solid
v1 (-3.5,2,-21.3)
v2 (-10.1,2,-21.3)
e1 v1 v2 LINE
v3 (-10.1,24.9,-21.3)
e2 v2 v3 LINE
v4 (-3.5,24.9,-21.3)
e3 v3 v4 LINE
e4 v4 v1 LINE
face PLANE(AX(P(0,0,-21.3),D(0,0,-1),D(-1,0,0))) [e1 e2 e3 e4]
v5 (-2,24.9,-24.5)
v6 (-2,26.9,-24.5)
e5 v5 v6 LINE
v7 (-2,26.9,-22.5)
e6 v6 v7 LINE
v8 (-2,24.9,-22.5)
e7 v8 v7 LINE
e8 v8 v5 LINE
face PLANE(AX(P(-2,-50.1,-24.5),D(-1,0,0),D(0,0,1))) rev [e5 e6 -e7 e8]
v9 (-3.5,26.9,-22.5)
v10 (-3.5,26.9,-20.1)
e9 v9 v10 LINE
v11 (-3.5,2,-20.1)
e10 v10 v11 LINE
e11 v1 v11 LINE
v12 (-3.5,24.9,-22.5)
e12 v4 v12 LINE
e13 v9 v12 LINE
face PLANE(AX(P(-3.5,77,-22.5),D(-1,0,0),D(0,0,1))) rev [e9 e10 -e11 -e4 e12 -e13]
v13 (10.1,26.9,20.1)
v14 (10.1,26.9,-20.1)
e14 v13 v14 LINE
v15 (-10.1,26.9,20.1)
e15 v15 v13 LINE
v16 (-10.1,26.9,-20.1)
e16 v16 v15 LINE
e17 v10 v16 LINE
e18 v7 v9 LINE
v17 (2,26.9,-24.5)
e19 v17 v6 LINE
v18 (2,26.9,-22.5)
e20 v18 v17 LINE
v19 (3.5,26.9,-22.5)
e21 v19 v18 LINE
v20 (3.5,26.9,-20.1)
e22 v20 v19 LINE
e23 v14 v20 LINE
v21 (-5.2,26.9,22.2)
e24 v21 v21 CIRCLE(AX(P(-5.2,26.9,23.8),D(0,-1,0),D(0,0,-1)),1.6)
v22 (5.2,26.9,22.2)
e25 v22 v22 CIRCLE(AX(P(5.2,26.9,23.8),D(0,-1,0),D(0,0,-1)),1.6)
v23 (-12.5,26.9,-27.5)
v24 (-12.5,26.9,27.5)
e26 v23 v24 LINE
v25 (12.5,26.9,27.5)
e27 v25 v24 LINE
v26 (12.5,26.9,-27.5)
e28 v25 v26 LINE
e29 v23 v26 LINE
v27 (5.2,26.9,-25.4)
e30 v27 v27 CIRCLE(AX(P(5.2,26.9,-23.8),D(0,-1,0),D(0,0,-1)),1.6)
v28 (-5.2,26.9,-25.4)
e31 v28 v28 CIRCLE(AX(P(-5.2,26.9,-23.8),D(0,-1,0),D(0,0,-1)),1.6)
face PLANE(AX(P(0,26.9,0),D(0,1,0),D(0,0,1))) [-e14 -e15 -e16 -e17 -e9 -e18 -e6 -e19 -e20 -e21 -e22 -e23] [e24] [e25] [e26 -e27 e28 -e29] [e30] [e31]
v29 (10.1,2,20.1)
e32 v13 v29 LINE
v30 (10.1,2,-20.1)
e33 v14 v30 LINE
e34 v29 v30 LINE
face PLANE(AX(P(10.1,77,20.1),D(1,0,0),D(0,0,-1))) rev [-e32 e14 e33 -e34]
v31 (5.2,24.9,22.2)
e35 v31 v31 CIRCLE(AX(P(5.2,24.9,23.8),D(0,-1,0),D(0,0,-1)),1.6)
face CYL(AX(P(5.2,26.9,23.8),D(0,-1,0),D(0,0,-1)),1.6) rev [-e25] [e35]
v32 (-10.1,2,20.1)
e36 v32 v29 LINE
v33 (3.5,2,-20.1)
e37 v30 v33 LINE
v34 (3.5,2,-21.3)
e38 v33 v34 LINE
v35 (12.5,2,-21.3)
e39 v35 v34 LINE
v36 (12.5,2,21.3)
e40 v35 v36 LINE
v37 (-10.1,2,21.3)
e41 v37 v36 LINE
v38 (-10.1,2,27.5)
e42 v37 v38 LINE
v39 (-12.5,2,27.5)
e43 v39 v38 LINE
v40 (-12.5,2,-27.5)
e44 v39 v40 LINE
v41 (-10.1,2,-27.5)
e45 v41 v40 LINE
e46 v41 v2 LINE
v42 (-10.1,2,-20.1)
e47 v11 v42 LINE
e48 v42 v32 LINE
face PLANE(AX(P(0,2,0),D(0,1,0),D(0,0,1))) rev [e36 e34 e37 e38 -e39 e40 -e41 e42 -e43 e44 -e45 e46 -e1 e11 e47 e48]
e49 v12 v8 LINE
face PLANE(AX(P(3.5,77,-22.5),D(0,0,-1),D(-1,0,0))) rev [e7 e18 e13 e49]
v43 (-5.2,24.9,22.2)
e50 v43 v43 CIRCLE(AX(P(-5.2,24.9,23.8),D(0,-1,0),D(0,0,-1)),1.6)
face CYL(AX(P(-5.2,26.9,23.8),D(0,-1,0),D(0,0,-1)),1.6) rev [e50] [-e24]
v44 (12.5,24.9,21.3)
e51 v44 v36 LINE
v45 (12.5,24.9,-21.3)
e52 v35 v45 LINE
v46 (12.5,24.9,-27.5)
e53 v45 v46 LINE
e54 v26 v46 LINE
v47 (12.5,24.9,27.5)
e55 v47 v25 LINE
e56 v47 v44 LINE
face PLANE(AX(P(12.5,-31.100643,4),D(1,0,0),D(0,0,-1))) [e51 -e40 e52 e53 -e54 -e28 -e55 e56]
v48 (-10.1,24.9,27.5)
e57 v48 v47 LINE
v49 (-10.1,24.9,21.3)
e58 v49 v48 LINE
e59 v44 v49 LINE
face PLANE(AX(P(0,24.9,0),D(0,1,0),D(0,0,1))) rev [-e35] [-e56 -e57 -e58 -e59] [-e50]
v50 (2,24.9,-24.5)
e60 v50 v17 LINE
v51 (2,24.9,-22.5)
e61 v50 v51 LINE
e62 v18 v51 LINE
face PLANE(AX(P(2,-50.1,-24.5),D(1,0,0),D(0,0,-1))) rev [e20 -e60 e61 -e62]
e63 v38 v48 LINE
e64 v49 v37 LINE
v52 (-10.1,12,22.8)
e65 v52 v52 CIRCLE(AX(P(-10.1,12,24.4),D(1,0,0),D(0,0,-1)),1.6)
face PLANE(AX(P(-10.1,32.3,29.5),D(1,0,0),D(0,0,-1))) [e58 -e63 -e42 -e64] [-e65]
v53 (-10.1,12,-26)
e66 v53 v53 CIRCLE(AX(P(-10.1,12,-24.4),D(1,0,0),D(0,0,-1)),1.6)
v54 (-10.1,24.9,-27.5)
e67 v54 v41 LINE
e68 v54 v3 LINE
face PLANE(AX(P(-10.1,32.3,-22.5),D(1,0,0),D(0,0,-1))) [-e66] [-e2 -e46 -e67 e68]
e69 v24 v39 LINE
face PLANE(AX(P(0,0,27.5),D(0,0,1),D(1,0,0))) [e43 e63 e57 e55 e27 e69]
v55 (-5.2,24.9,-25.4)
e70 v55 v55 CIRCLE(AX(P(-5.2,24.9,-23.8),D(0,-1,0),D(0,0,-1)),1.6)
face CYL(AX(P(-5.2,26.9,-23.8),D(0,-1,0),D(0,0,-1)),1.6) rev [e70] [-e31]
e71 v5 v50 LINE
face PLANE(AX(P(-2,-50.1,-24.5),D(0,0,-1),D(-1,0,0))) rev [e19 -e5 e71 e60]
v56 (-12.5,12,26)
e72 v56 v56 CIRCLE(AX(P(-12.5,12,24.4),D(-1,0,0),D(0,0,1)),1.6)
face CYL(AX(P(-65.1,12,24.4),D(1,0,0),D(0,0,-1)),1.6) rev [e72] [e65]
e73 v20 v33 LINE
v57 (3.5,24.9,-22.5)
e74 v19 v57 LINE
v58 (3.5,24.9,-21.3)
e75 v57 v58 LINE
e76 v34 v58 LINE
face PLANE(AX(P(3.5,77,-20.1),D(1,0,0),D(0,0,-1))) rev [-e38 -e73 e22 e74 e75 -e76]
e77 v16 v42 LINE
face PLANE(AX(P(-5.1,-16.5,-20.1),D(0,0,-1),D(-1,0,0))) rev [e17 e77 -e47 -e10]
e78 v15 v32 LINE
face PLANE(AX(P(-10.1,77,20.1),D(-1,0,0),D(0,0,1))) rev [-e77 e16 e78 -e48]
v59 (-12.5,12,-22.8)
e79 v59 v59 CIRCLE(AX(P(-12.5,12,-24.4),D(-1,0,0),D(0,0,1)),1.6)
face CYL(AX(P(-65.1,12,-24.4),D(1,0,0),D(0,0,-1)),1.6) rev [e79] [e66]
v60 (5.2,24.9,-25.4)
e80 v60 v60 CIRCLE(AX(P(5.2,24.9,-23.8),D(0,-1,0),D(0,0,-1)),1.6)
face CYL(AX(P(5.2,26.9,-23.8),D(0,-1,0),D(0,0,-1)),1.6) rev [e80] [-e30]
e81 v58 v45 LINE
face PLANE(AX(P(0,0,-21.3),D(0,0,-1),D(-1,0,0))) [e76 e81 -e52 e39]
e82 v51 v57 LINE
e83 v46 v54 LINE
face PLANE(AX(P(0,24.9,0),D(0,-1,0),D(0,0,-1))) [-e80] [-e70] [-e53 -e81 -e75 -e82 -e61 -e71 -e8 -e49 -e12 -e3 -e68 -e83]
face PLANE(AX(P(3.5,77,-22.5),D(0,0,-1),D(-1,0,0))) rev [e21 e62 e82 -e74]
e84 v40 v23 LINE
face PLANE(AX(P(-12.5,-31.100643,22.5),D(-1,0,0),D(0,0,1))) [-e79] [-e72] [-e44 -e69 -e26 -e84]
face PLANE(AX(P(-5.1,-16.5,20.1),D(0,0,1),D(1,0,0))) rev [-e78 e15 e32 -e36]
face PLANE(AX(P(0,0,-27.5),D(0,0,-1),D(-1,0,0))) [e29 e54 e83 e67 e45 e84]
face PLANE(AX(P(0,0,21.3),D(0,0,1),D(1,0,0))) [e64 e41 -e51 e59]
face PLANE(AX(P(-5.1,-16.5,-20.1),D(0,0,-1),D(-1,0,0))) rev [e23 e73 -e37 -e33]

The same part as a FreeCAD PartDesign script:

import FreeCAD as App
import Part
import Sketcher
from FreeCAD import Vector


def edges_at(feature, points):
    """Names of the edges that pass closest to the given points."""
    edges = feature.Shape.Edges
    near = lambda p: min(range(len(edges)), key=lambda i: edges[i].distToShape(Part.Vertex(*p))[0])
    return sorted({f"Edge{near(p) + 1}" for p in points})

doc = App.newDocument("Part")
body = doc.addObject("PartDesign::Body", "Body")

# Sketch on XZ plane
sketch1 = body.newObject("Sketcher::SketchObject", "Sketch")
sketch1.AttachmentSupport = (doc.getObject("XZ_Plane"), [""])
sketch1.MapMode = "FlatFace"
sketch1.addGeometry([
    Part.LineSegment(Vector(-37.5, -4, 0), Vector(-37.5, 4, 0)),  # 0
    Part.LineSegment(Vector(-37.5, 4, 0), Vector(37.5, 4, 0)),  # 1
    Part.LineSegment(Vector(37.5, 4, 0), Vector(37.5, -4, 0)),  # 2
    Part.LineSegment(Vector(37.5, -4, 0), Vector(-37.5, -4, 0)),  # 3
    Part.Circle(Vector(-31.8, 0, 0), Vector(0, 0, 1), 1.6),  # 4
    Part.Circle(Vector(31.8, 0, 0), Vector(0, 0, 1), 1.6),  # 5
], False)
sketch1.addConstraint([
    Sketcher.Constraint("Coincident", 0, 2, 1, 1),
    Sketcher.Constraint("Coincident", 1, 2, 2, 1),
    Sketcher.Constraint("Coincident", 2, 2, 3, 1),
    Sketcher.Constraint("Coincident", 3, 2, 0, 1),
    Sketcher.Constraint("Vertical", 0),
    Sketcher.Constraint("Horizontal", 1),
    Sketcher.Constraint("Vertical", 2),
    Sketcher.Constraint("Horizontal", 3),
    Sketcher.Constraint("Equal", 4, 5),
    Sketcher.Constraint("Symmetric", 4, 3, 5, 3, -1, 1),
    Sketcher.Constraint("Symmetric", 0, 2, 2, 2, -1, 1),
    Sketcher.Constraint("PointOnObject", 4, 3, -1),
    Sketcher.Constraint("Diameter", 4, 3.2),
    Sketcher.Constraint("DistanceX", 1, 1, 1, 2, 75.0),
    Sketcher.Constraint("DistanceY", 0, 1, 0, 2, 8.0),
    Sketcher.Constraint("DistanceX", 4, 3, 5, 3, 63.5),
])
pad1 = body.newObject("PartDesign::Pad", "Pad")
pad1.Profile = sketch1
pad1.Length = 2
pad1.Reversed = True

# Sketch on XZ plane
sketch2 = body.newObject("Sketcher::SketchObject", "Sketch001")
sketch2.AttachmentSupport = (doc.getObject("XZ_Plane"), [""])
sketch2.MapMode = "FlatFace"
sketch2.AttachmentOffset = App.Placement(Vector(0, 0, -2), App.Rotation())
sketch2.addGeometry([
    Part.LineSegment(Vector(-12, 4, 0), Vector(-12, 22, 0)),
    Part.LineSegment(Vector(-12, 22, 0), Vector(12, 22, 0)),
    Part.LineSegment(Vector(12, 22, 0), Vector(12, 4, 0)),
    Part.LineSegment(Vector(12, 4, 0), Vector(-12, 4, 0)),
], False)
sketch2.addConstraint([
    Sketcher.Constraint("Coincident", 0, 2, 1, 1),
    Sketcher.Constraint("Coincident", 1, 2, 2, 1),
    Sketcher.Constraint("Coincident", 2, 2, 3, 1),
    Sketcher.Constraint("Coincident", 3, 2, 0, 1),
    Sketcher.Constraint("Vertical", 0),
    Sketcher.Constraint("Horizontal", 1),
    Sketcher.Constraint("Vertical", 2),
    Sketcher.Constraint("Horizontal", 3),
    Sketcher.Constraint("DistanceX", 1, 1, 1, 2, 25.0),
    Sketcher.Constraint("DistanceY", 0, 1, 0, 2, 18.5),
    Sketcher.Constraint("DistanceY", -1, 1, 2, 2, 4.0),
    Sketcher.Constraint("DistanceX", 0, 2, -1, 1, 12.5),
])
pad2 = body.newObject("PartDesign::Pad", "Pad001")
pad2.Profile = sketch2
pad2.Length = 2

# Sketch on XY plane
sketch3 = body.newObject("Sketcher::SketchObject", "Sketch002")
sketch3.AttachmentSupport = (doc.getObject("XY_Plane"), [""])
sketch3.MapMode = "FlatFace"
sketch3.AttachmentOffset = App.Placement(Vector(0, 0, -4), App.Rotation())
sketch3.addGeometry([
    Part.LineSegment(Vector(12.5, 2, 0), Vector(12.5, 0, 0)),
    Part.LineSegment(Vector(12.5, 0, 0), Vector(-12.5, 0, 0)),
    Part.LineSegment(Vector(-12.5, 0, 0), Vector(-12.5, 2, 0)),
    Part.LineSegment(Vector(-12.5, 2, 0), Vector(12.5, 2, 0)),
], False)
sketch3.addConstraint([
    Sketcher.Constraint("Coincident", 0, 2, 1, 1),
    Sketcher.Constraint("Coincident", 1, 2, 2, 1),
    Sketcher.Constraint("Coincident", 2, 2, 3, 1),
    Sketcher.Constraint("Coincident", 3, 2, 0, 1),
    Sketcher.Constraint("Vertical", 0),
    Sketcher.Constraint("Horizontal", 1),
    Sketcher.Constraint("Vertical", 2),
    Sketcher.Constraint("Horizontal", 3),
    Sketcher.Constraint("Symmetric", 0, 2, 1, 2, -1, 1),
    Sketcher.Constraint("DistanceX", 1, 2, 1, 1, 25.0),
    Sketcher.Constraint("DistanceY", 0, 2, 0, 1, 2.0),
])
pad3 = body.newObject("PartDesign::Pad", "Pad002")
pad3.Profile = sketch3
pad3.Length = 18.5
pad3.Reversed = True

# Sketch on XZ plane
sketch4 = body.newObject("Sketcher::SketchObject", "Sketch003")
sketch4.AttachmentSupport = (doc.getObject("XZ_Plane"), [""])
sketch4.MapMode = "FlatFace"
sketch4.AttachmentOffset = App.Placement(Vector(0, 0, -2), App.Rotation())
sketch4.addGeometry([
    Part.LineSegment(Vector(-5, -20, 0), Vector(-5, 20, 0)),
    Part.LineSegment(Vector(-5, 20, 0), Vector(5, 20, 0)),
    Part.LineSegment(Vector(5, 20, 0), Vector(5, -20, 0)),
    Part.LineSegment(Vector(5, -20, 0), Vector(-5, -20, 0)),
], False)
sketch4.addConstraint([
    Sketcher.Constraint("Coincident", 0, 2, 1, 1),
    Sketcher.Constraint("Coincident", 1, 2, 2, 1),
    Sketcher.Constraint("Coincident", 2, 2, 3, 1),
    Sketcher.Constraint("Coincident", 3, 2, 0, 1),
    Sketcher.Constraint("Vertical", 0),
    Sketcher.Constraint("Horizontal", 1),
    Sketcher.Constraint("Vertical", 2),
    Sketcher.Constraint("Horizontal", 3),
    Sketcher.Constraint("Symmetric", 0, 2, 2, 2, -1, 1),
    Sketcher.Constraint("DistanceX", 1, 1, 1, 2, 10.2),
    Sketcher.Constraint("DistanceY", 0, 1, 0, 2, 40.2),
])
pocket1 = body.newObject("PartDesign::Pocket", "Pocket")
pocket1.Profile = sketch4
pocket1.Length = 18.5
pocket1.Reversed = True

# Sketch on XZ plane
sketch5 = body.newObject("Sketcher::SketchObject", "Sketch004")
sketch5.AttachmentSupport = (doc.getObject("XZ_Plane"), [""])
sketch5.MapMode = "FlatFace"
sketch5.AttachmentOffset = App.Placement(Vector(0, 0, -2), App.Rotation())
sketch5.addGeometry([
    Part.LineSegment(Vector(-12, 22, 0), Vector(12, 22, 0)),  # 0
    Part.LineSegment(Vector(12, 22, 0), Vector(12, -22, 0)),  # 1
    Part.LineSegment(Vector(12, -22, 0), Vector(-12, -22, 0)),  # 2
    Part.LineSegment(Vector(-12, -22, 0), Vector(-12, 22, 0)),  # 3
    Part.LineSegment(Vector(5, 20, 0), Vector(-5, 20, 0)),  # 4
    Part.LineSegment(Vector(-5, 20, 0), Vector(-5, -20, 0)),  # 5
    Part.LineSegment(Vector(-5, -20, 0), Vector(5, -20, 0)),  # 6
    Part.LineSegment(Vector(5, -20, 0), Vector(5, 20, 0)),  # 7
], False)
sketch5.addConstraint([
    Sketcher.Constraint("Coincident", 0, 2, 1, 1),
    Sketcher.Constraint("Coincident", 1, 2, 2, 1),
    Sketcher.Constraint("Coincident", 2, 2, 3, 1),
    Sketcher.Constraint("Coincident", 3, 2, 0, 1),
    Sketcher.Constraint("Coincident", 4, 2, 5, 1),
    Sketcher.Constraint("Coincident", 5, 2, 6, 1),
    Sketcher.Constraint("Coincident", 6, 2, 7, 1),
    Sketcher.Constraint("Coincident", 7, 2, 4, 1),
    Sketcher.Constraint("Horizontal", 0),
    Sketcher.Constraint("Vertical", 1),
    Sketcher.Constraint("Horizontal", 2),
    Sketcher.Constraint("Vertical", 3),
    Sketcher.Constraint("Horizontal", 4),
    Sketcher.Constraint("Vertical", 5),
    Sketcher.Constraint("Horizontal", 6),
    Sketcher.Constraint("Vertical", 7),
    Sketcher.Constraint("Symmetric", 0, 2, 2, 2, -1, 1),
    Sketcher.Constraint("Symmetric", 4, 2, 6, 2, -1, 1),
    Sketcher.Constraint("DistanceX", 0, 1, 0, 2, 25.0),
    Sketcher.Constraint("DistanceY", 1, 2, 1, 1, 45.0),
    Sketcher.Constraint("DistanceX", 4, 2, 4, 1, 10.2),
    Sketcher.Constraint("DistanceY", 5, 2, 5, 1, 40.2),
])
pad4 = body.newObject("PartDesign::Pad", "Pad003")
pad4.Profile = sketch5
pad4.Length = 24.9
pad4.Reversed = True

# Sketch on XZ plane
sketch6 = body.newObject("Sketcher::SketchObject", "Sketch005")
sketch6.AttachmentSupport = (doc.getObject("XZ_Plane"), [""])
sketch6.MapMode = "FlatFace"
sketch6.AttachmentOffset = App.Placement(Vector(0, 0, -26.9), App.Rotation())
sketch6.addGeometry([
    Part.LineSegment(Vector(-12, -30, 0), Vector(-12, -22, 0)),  # 0
    Part.LineSegment(Vector(-12, -22, 0), Vector(12, -22, 0)),  # 1
    Part.LineSegment(Vector(12, -22, 0), Vector(12, -30, 0)),  # 2
    Part.LineSegment(Vector(12, -30, 0), Vector(-12, -30, 0)),  # 3
    Part.LineSegment(Vector(-12, 22, 0), Vector(-12, 30, 0)),  # 4
    Part.LineSegment(Vector(-12, 30, 0), Vector(12, 30, 0)),  # 5
    Part.LineSegment(Vector(12, 30, 0), Vector(12, 22, 0)),  # 6
    Part.LineSegment(Vector(12, 22, 0), Vector(-12, 22, 0)),  # 7
], False)
sketch6.addConstraint([
    Sketcher.Constraint("Coincident", 0, 2, 1, 1),
    Sketcher.Constraint("Coincident", 1, 2, 2, 1),
    Sketcher.Constraint("Coincident", 2, 2, 3, 1),
    Sketcher.Constraint("Coincident", 3, 2, 0, 1),
    Sketcher.Constraint("Coincident", 4, 2, 5, 1),
    Sketcher.Constraint("Coincident", 5, 2, 6, 1),
    Sketcher.Constraint("Coincident", 6, 2, 7, 1),
    Sketcher.Constraint("Coincident", 7, 2, 4, 1),
    Sketcher.Constraint("Vertical", 0),
    Sketcher.Constraint("Horizontal", 1),
    Sketcher.Constraint("Vertical", 2),
    Sketcher.Constraint("Horizontal", 3),
    Sketcher.Constraint("Vertical", 4),
    Sketcher.Constraint("Horizontal", 5),
    Sketcher.Constraint("Vertical", 6),
    Sketcher.Constraint("Horizontal", 7),
    Sketcher.Constraint("Symmetric", 2, 2, 4, 2, -1, 1),
    Sketcher.Constraint("Symmetric", 0, 2, 6, 2, -1, 1),
    Sketcher.Constraint("Vertical", 3, 2, 4, 2),
    Sketcher.Constraint("DistanceX", 1, 1, 1, 2, 25.0),
    Sketcher.Constraint("DistanceY", 0, 1, 0, 2, 7.0),
    Sketcher.Constraint("DistanceY", 0, 2, 4, 2, 52.0),
])
pad5 = body.newObject("PartDesign::Pad", "Pad004")
pad5.Profile = sketch6
pad5.Length = 2

# Sketch on XZ plane
sketch7 = body.newObject("Sketcher::SketchObject", "Sketch006")
sketch7.AttachmentSupport = (doc.getObject("XZ_Plane"), [""])
sketch7.MapMode = "FlatFace"
sketch7.AttachmentOffset = App.Placement(Vector(0, 0, -24.9), App.Rotation())
sketch7.addGeometry([
    Part.Circle(Vector(5.2, 23.8, 0), Vector(0, 0, 1), 1.6),
    Part.Circle(Vector(-5.2, 23.8, 0), Vector(0, 0, 1), 1.6),
    Part.Circle(Vector(-5.2, -23.8, 0), Vector(0, 0, 1), 1.6),
    Part.Circle(Vector(5.2, -23.8, 0), Vector(0, 0, 1), 1.6),
], False)
sketch7.addConstraint([
    Sketcher.Constraint("Equal", 0, 1),
    Sketcher.Constraint("Equal", 1, 2),
    Sketcher.Constraint("Equal", 2, 3),
    Sketcher.Constraint("Symmetric", 0, 3, 2, 3, -1, 1),
    Sketcher.Constraint("Symmetric", 1, 3, 3, 3, -1, 1),
    Sketcher.Constraint("Symmetric", 0, 3, 1, 3, -2),
    Sketcher.Constraint("Diameter", 0, 3.2),
    Sketcher.Constraint("DistanceX", -1, 1, 0, 3, 5.2),
    Sketcher.Constraint("DistanceY", -1, 1, 0, 3, 23.8),
])
pocket2 = body.newObject("PartDesign::Pocket", "Pocket001")
pocket2.Profile = sketch7
pocket2.Length = 2

# Sketch on XZ plane
sketch8 = body.newObject("Sketcher::SketchObject", "Sketch007")
sketch8.AttachmentSupport = (doc.getObject("XZ_Plane"), [""])
sketch8.MapMode = "FlatFace"
sketch8.addGeometry([
    Part.LineSegment(Vector(-10, 20, 0), Vector(-10, -20, 0)),
    Part.LineSegment(Vector(-10, -20, 0), Vector(10, -20, 0)),
    Part.LineSegment(Vector(10, -20, 0), Vector(10, 20, 0)),
    Part.LineSegment(Vector(10, 20, 0), Vector(-10, 20, 0)),
], False)
sketch8.addConstraint([
    Sketcher.Constraint("Coincident", 0, 2, 1, 1),
    Sketcher.Constraint("Coincident", 1, 2, 2, 1),
    Sketcher.Constraint("Coincident", 2, 2, 3, 1),
    Sketcher.Constraint("Coincident", 3, 2, 0, 1),
    Sketcher.Constraint("Vertical", 0),
    Sketcher.Constraint("Horizontal", 1),
    Sketcher.Constraint("Vertical", 2),
    Sketcher.Constraint("Horizontal", 3),
    Sketcher.Constraint("Symmetric", 0, 2, 2, 2, -1, 1),
    Sketcher.Constraint("DistanceX", 1, 1, 1, 2, 20.2),
    Sketcher.Constraint("DistanceY", 0, 2, 0, 1, 40.2),
])
pocket3 = body.newObject("PartDesign::Pocket", "Pocket002")
pocket3.Profile = sketch8
pocket3.Length = 77

# Sketch on XZ plane
sketch9 = body.newObject("Sketcher::SketchObject", "Sketch008")
sketch9.AttachmentSupport = (doc.getObject("XZ_Plane"), [""])
sketch9.MapMode = "FlatFace"
sketch9.addGeometry([
    Part.LineSegment(Vector(-3.5, -20.1, 0), Vector(-3.5, -22.5, 0)),
    Part.LineSegment(Vector(-3.5, -22.5, 0), Vector(3.5, -22.5, 0)),
    Part.LineSegment(Vector(3.5, -22.5, 0), Vector(3.5, -20.1, 0)),
    Part.LineSegment(Vector(3.5, -20.1, 0), Vector(-3.5, -20.1, 0)),
], False)
sketch9.addConstraint([
    Sketcher.Constraint("Coincident", 0, 2, 1, 1),
    Sketcher.Constraint("Coincident", 1, 2, 2, 1),
    Sketcher.Constraint("Coincident", 2, 2, 3, 1),
    Sketcher.Constraint("Coincident", 3, 2, 0, 1),
    Sketcher.Constraint("Vertical", 0),
    Sketcher.Constraint("Horizontal", 1),
    Sketcher.Constraint("Vertical", 2),
    Sketcher.Constraint("Horizontal", 3),
    Sketcher.Constraint("DistanceX", 1, 1, 1, 2, 7.0),
    Sketcher.Constraint("DistanceY", 0, 2, 0, 1, 2.4),
    Sketcher.Constraint("DistanceX", 0, 2, -1, 1, 3.5),
    Sketcher.Constraint("DistanceY", 0, 2, -1, 1, 22.5),
])
pocket4 = body.newObject("PartDesign::Pocket", "Pocket003")
pocket4.Profile = sketch9
pocket4.Length = 77

# Sketch on XZ plane
sketch10 = body.newObject("Sketcher::SketchObject", "Sketch009")
sketch10.AttachmentSupport = (doc.getObject("XZ_Plane"), [""])
sketch10.MapMode = "FlatFace"
sketch10.addGeometry([
    Part.LineSegment(Vector(-12.5, 29.5, 0), Vector(-12.5, 22.5, 0)),  # 0
    Part.LineSegment(Vector(-12.5, 22.5, 0), Vector(-10.1, 22.5, 0)),  # 1
    Part.LineSegment(Vector(-10.1, 22.5, 0), Vector(-10.1, 29.5, 0)),  # 2
    Part.LineSegment(Vector(-10.1, 29.5, 0), Vector(-12.5, 29.5, 0)),  # 3
    Part.LineSegment(Vector(-12.5, -22.5, 0), Vector(-12.5, -29.5, 0)),  # 4
    Part.LineSegment(Vector(-12.5, -29.5, 0), Vector(-10.1, -29.5, 0)),  # 5
    Part.LineSegment(Vector(-10.1, -29.5, 0), Vector(-10.1, -22.5, 0)),  # 6
    Part.LineSegment(Vector(-10.1, -22.5, 0), Vector(-12.5, -22.5, 0)),  # 7
    Part.LineSegment(Vector(10.1, 29.5, 0), Vector(10.1, 22.5, 0)),  # 8
    Part.LineSegment(Vector(10.1, 22.5, 0), Vector(12.5, 22.5, 0)),  # 9
    Part.LineSegment(Vector(12.5, 22.5, 0), Vector(12.5, 29.5, 0)),  # 10
    Part.LineSegment(Vector(12.5, 29.5, 0), Vector(10.1, 29.5, 0)),  # 11
    Part.LineSegment(Vector(10.1, -22.5, 0), Vector(10.1, -29.5, 0)),  # 12
    Part.LineSegment(Vector(10.1, -29.5, 0), Vector(12.5, -29.5, 0)),  # 13
    Part.LineSegment(Vector(12.5, -29.5, 0), Vector(12.5, -22.5, 0)),  # 14
    Part.LineSegment(Vector(12.5, -22.5, 0), Vector(10.1, -22.5, 0)),  # 15
], False)
sketch10.addConstraint([
    Sketcher.Constraint("Coincident", 0, 2, 1, 1),
    Sketcher.Constraint("Coincident", 1, 2, 2, 1),
    Sketcher.Constraint("Coincident", 2, 2, 3, 1),
    Sketcher.Constraint("Coincident", 3, 2, 0, 1),
    Sketcher.Constraint("Coincident", 4, 2, 5, 1),
    Sketcher.Constraint("Coincident", 5, 2, 6, 1),
    Sketcher.Constraint("Coincident", 6, 2, 7, 1),
    Sketcher.Constraint("Coincident", 7, 2, 4, 1),
    Sketcher.Constraint("Coincident", 8, 2, 9, 1),
    Sketcher.Constraint("Coincident", 9, 2, 10, 1),
    Sketcher.Constraint("Coincident", 10, 2, 11, 1),
    Sketcher.Constraint("Coincident", 11, 2, 8, 1),
    Sketcher.Constraint("Coincident", 12, 2, 13, 1),
    Sketcher.Constraint("Coincident", 13, 2, 14, 1),
    Sketcher.Constraint("Coincident", 14, 2, 15, 1),
    Sketcher.Constraint("Coincident", 15, 2, 12, 1),
    Sketcher.Constraint("Vertical", 0),
    Sketcher.Constraint("Horizontal", 1),
    Sketcher.Constraint("Vertical", 2),
    Sketcher.Constraint("Horizontal", 3),
    Sketcher.Constraint("Vertical", 4),
    Sketcher.Constraint("Horizontal", 5),
    Sketcher.Constraint("Vertical", 6),
    Sketcher.Constraint("Horizontal", 7),
    Sketcher.Constraint("Vertical", 8),
    Sketcher.Constraint("Horizontal", 9),
    Sketcher.Constraint("Vertical", 10),
    Sketcher.Constraint("Horizontal", 11),
    Sketcher.Constraint("Vertical", 12),
    Sketcher.Constraint("Horizontal", 13),
    Sketcher.Constraint("Vertical", 14),
    Sketcher.Constraint("Horizontal", 15),
    Sketcher.Constraint("Symmetric", 6, 2, 8, 2, -1, 1),
    Sketcher.Constraint("Symmetric", 4, 2, 10, 2, -1, 1),
    Sketcher.Constraint("Symmetric", 2, 2, 12, 2, -1, 1),
    Sketcher.Constraint("Symmetric", 0, 2, 14, 2, -1, 1),
    Sketcher.Constraint("Symmetric", 1, 2, 8, 2, -2),
    Sketcher.Constraint("Symmetric", 3, 2, 10, 2, -2),
    Sketcher.Constraint("DistanceY", 0, 2, 0, 1, 7.0),
    Sketcher.Constraint("DistanceX", 1, 1, 1, 2, 2.4),
    Sketcher.Constraint("DistanceY", 4, 2, 0, 2, 52.0),
    Sketcher.Constraint("DistanceX", 0, 2, 9, 2, 25.0),
])
pad6 = body.newObject("PartDesign::Pad", "Pad005")
pad6.Profile = sketch10
pad6.Length = 24.9
pad6.Reversed = True

# Sketch on XZ plane
sketch11 = body.newObject("Sketcher::SketchObject", "Sketch010")
sketch11.AttachmentSupport = (doc.getObject("XZ_Plane"), [""])
sketch11.MapMode = "FlatFace"
sketch11.AttachmentOffset = App.Placement(Vector(0, 0, -26.9), App.Rotation())
sketch11.addGeometry([
    Part.LineSegment(Vector(-2, -24.5, 0), Vector(-2, -20.5, 0)),
    Part.LineSegment(Vector(-2, -20.5, 0), Vector(2, -20.5, 0)),
    Part.LineSegment(Vector(2, -20.5, 0), Vector(2, -24.5, 0)),
    Part.LineSegment(Vector(2, -24.5, 0), Vector(-2, -24.5, 0)),
], False)
sketch11.addConstraint([
    Sketcher.Constraint("Coincident", 0, 2, 1, 1),
    Sketcher.Constraint("Coincident", 1, 2, 2, 1),
    Sketcher.Constraint("Coincident", 2, 2, 3, 1),
    Sketcher.Constraint("Coincident", 3, 2, 0, 1),
    Sketcher.Constraint("Vertical", 0),
    Sketcher.Constraint("Horizontal", 1),
    Sketcher.Constraint("Vertical", 2),
    Sketcher.Constraint("Horizontal", 3),
    Sketcher.Constraint("Equal", 3, 0),
    Sketcher.Constraint("DistanceX", 1, 1, 1, 2, 4.0),
    Sketcher.Constraint("DistanceX", 0, 2, -1, 1, 2.0),
    Sketcher.Constraint("DistanceY", 0, 2, -1, 1, 20.5),
])
pocket5 = body.newObject("PartDesign::Pocket", "Pocket004")
pocket5.Profile = sketch11
pocket5.Length = 77
pocket5.Reversed = True

# Sketch on XZ plane
sketch12 = body.newObject("Sketcher::SketchObject", "Sketch011")
sketch12.AttachmentSupport = (doc.getObject("XZ_Plane"), [""])
sketch12.MapMode = "FlatFace"
sketch12.AttachmentOffset = App.Placement(Vector(0, 0, -2), App.Rotation())
sketch12.addGeometry([
    Part.LineSegment(Vector(-37.5, -4, 0), Vector(-37.5, 4, 0)),  # 0
    Part.LineSegment(Vector(-37.5, 4, 0), Vector(-12.5, 4, 0)),  # 1
    Part.LineSegment(Vector(-12.5, 4, 0), Vector(-12.5, -4, 0)),  # 2
    Part.LineSegment(Vector(-12.5, -4, 0), Vector(-37.5, -4, 0)),  # 3
    Part.Circle(Vector(-31.8, 0, 0), Vector(0, 0, 1), 1.6),  # 4
    Part.LineSegment(Vector(12.5, -4, 0), Vector(12.5, 4, 0)),  # 5
    Part.LineSegment(Vector(12.5, 4, 0), Vector(37.5, 4, 0)),  # 6
    Part.LineSegment(Vector(37.5, 4, 0), Vector(37.5, -4, 0)),  # 7
    Part.LineSegment(Vector(37.5, -4, 0), Vector(12.5, -4, 0)),  # 8
    Part.Circle(Vector(31.8, 0, 0), Vector(0, 0, 1), 1.6),  # 9
], False)
sketch12.addConstraint([
    Sketcher.Constraint("Coincident", 0, 2, 1, 1),
    Sketcher.Constraint("Coincident", 1, 2, 2, 1),
    Sketcher.Constraint("Coincident", 2, 2, 3, 1),
    Sketcher.Constraint("Coincident", 3, 2, 0, 1),
    Sketcher.Constraint("Coincident", 5, 2, 6, 1),
    Sketcher.Constraint("Coincident", 6, 2, 7, 1),
    Sketcher.Constraint("Coincident", 7, 2, 8, 1),
    Sketcher.Constraint("Coincident", 8, 2, 5, 1),
    Sketcher.Constraint("Vertical", 0),
    Sketcher.Constraint("Horizontal", 1),
    Sketcher.Constraint("Vertical", 2),
    Sketcher.Constraint("Horizontal", 3),
    Sketcher.Constraint("Vertical", 5),
    Sketcher.Constraint("Horizontal", 6),
    Sketcher.Constraint("Vertical", 7),
    Sketcher.Constraint("Horizontal", 8),
    Sketcher.Constraint("Equal", 4, 9),
    Sketcher.Constraint("Symmetric", 4, 3, 9, 3, -1, 1),
    Sketcher.Constraint("Symmetric", 2, 2, 5, 2, -1, 1),
    Sketcher.Constraint("Symmetric", 0, 2, 7, 2, -1, 1),
    Sketcher.Constraint("PointOnObject", 4, 3, -1),
    Sketcher.Constraint("Horizontal", 1, 2, 5, 2),
    Sketcher.Constraint("Diameter", 4, 3.2),
    Sketcher.Constraint("DistanceX", 1, 1, 1, 2, 25.0),
    Sketcher.Constraint("DistanceY", 0, 1, 0, 2, 8.0),
    Sketcher.Constraint("DistanceX", 1, 2, 5, 2, 25.0),
    Sketcher.Constraint("DistanceX", 4, 3, 9, 3, 63.5),
])
pad7 = body.newObject("PartDesign::Pad", "Pad006")
pad7.Profile = sketch12
pad7.Length = 2
pad7.Reversed = True

# Sketch on XZ plane
sketch13 = body.newObject("Sketcher::SketchObject", "Sketch012")
sketch13.AttachmentSupport = (doc.getObject("XZ_Plane"), [""])
sketch13.MapMode = "FlatFace"
sketch13.addGeometry([
    Part.LineSegment(Vector(10.1, -20.1, 0), Vector(3.5, -20.1, 0)),  # 0
    Part.LineSegment(Vector(3.5, -20.1, 0), Vector(3.5, -22.5, 0)),  # 1
    Part.LineSegment(Vector(3.5, -22.5, 0), Vector(10.1, -22.5, 0)),  # 2
    Part.LineSegment(Vector(10.1, -22.5, 0), Vector(10.1, -29.5, 0)),  # 3
    Part.LineSegment(Vector(10.1, -29.5, 0), Vector(12.5, -29.5, 0)),  # 4
    Part.LineSegment(Vector(12.5, -29.5, 0), Vector(12.5, -4, 0)),  # 5
    Part.LineSegment(Vector(12.5, -4, 0), Vector(37.5, -4, 0)),  # 6
    Part.LineSegment(Vector(37.5, -4, 0), Vector(37.5, 4, 0)),  # 7
    Part.LineSegment(Vector(37.5, 4, 0), Vector(12.5, 4, 0)),  # 8
    Part.LineSegment(Vector(12.5, 4, 0), Vector(12.5, 29.5, 0)),  # 9
    Part.LineSegment(Vector(12.5, 29.5, 0), Vector(10.1, 29.5, 0)),  # 10
    Part.LineSegment(Vector(10.1, 29.5, 0), Vector(10.1, 22.5, 0)),  # 11
    Part.LineSegment(Vector(10.1, 22.5, 0), Vector(-10.1, 22.5, 0)),  # 12
    Part.LineSegment(Vector(-10.1, 22.5, 0), Vector(-10.1, 29.5, 0)),  # 13
    Part.LineSegment(Vector(-10.1, 29.5, 0), Vector(-12.5, 29.5, 0)),  # 14
    Part.LineSegment(Vector(-12.5, 29.5, 0), Vector(-12.5, 4, 0)),  # 15
    Part.LineSegment(Vector(-12.5, 4, 0), Vector(-37.5, 4, 0)),  # 16
    Part.LineSegment(Vector(-37.5, 4, 0), Vector(-37.5, -4, 0)),  # 17
    Part.LineSegment(Vector(-37.5, -4, 0), Vector(-12.5, -4, 0)),  # 18
    Part.LineSegment(Vector(-12.5, -4, 0), Vector(-12.5, -29.5, 0)),  # 19
    Part.LineSegment(Vector(-12.5, -29.5, 0), Vector(-10.1, -29.5, 0)),  # 20
    Part.LineSegment(Vector(-10.1, -29.5, 0), Vector(-10.1, -22.5, 0)),  # 21
    Part.LineSegment(Vector(-10.1, -22.5, 0), Vector(-3.5, -22.5, 0)),  # 22
    Part.LineSegment(Vector(-3.5, -22.5, 0), Vector(-3.5, -20.1, 0)),  # 23
    Part.LineSegment(Vector(-3.5, -20.1, 0), Vector(-10.1, -20.1, 0)),  # 24
    Part.LineSegment(Vector(-10.1, -20.1, 0), Vector(-10.1, 20.1, 0)),  # 25
    Part.LineSegment(Vector(-10.1, 20.1, 0), Vector(10.1, 20.1, 0)),  # 26
    Part.LineSegment(Vector(10.1, 20.1, 0), Vector(10.1, -20.1, 0)),  # 27
], False)
sketch13.addConstraint([
    Sketcher.Constraint("Coincident", 0, 2, 1, 1),
    Sketcher.Constraint("Coincident", 1, 2, 2, 1),
    Sketcher.Constraint("Coincident", 2, 2, 3, 1),
    Sketcher.Constraint("Coincident", 3, 2, 4, 1),
    Sketcher.Constraint("Coincident", 4, 2, 5, 1),
    Sketcher.Constraint("Coincident", 5, 2, 6, 1),
    Sketcher.Constraint("Coincident", 6, 2, 7, 1),
    Sketcher.Constraint("Coincident", 7, 2, 8, 1),
    Sketcher.Constraint("Coincident", 8, 2, 9, 1),
    Sketcher.Constraint("Coincident", 9, 2, 10, 1),
    Sketcher.Constraint("Coincident", 10, 2, 11, 1),
    Sketcher.Constraint("Coincident", 11, 2, 12, 1),
    Sketcher.Constraint("Coincident", 12, 2, 13, 1),
    Sketcher.Constraint("Coincident", 13, 2, 14, 1),
    Sketcher.Constraint("Coincident", 14, 2, 15, 1),
    Sketcher.Constraint("Coincident", 15, 2, 16, 1),
    Sketcher.Constraint("Coincident", 16, 2, 17, 1),
    Sketcher.Constraint("Coincident", 17, 2, 18, 1),
    Sketcher.Constraint("Coincident", 18, 2, 19, 1),
    Sketcher.Constraint("Coincident", 19, 2, 20, 1),
    Sketcher.Constraint("Coincident", 20, 2, 21, 1),
    Sketcher.Constraint("Coincident", 21, 2, 22, 1),
    Sketcher.Constraint("Coincident", 22, 2, 23, 1),
    Sketcher.Constraint("Coincident", 23, 2, 24, 1),
    Sketcher.Constraint("Coincident", 24, 2, 25, 1),
    Sketcher.Constraint("Coincident", 25, 2, 26, 1),
    Sketcher.Constraint("Coincident", 26, 2, 27, 1),
    Sketcher.Constraint("Coincident", 27, 2, 0, 1),
    Sketcher.Constraint("Horizontal", 0),
    Sketcher.Constraint("Vertical", 1),
    Sketcher.Constraint("Horizontal", 2),
    Sketcher.Constraint("Vertical", 3),
    Sketcher.Constraint("Horizontal", 4),
    Sketcher.Constraint("Vertical", 5),
    Sketcher.Constraint("Horizontal", 6),
    Sketcher.Constraint("Vertical", 7),
    Sketcher.Constraint("Horizontal", 8),
    Sketcher.Constraint("Vertical", 9),
    Sketcher.Constraint("Horizontal", 10),
    Sketcher.Constraint("Vertical", 11),
    Sketcher.Constraint("Horizontal", 12),
    Sketcher.Constraint("Vertical", 13),
    Sketcher.Constraint("Horizontal", 14),
    Sketcher.Constraint("Vertical", 15),
    Sketcher.Constraint("Horizontal", 16),
    Sketcher.Constraint("Vertical", 17),
    Sketcher.Constraint("Horizontal", 18),
    Sketcher.Constraint("Vertical", 19),
    Sketcher.Constraint("Horizontal", 20),
    Sketcher.Constraint("Vertical", 21),
    Sketcher.Constraint("Horizontal", 22),
    Sketcher.Constraint("Vertical", 23),
    Sketcher.Constraint("Horizontal", 24),
    Sketcher.Constraint("Vertical", 25),
    Sketcher.Constraint("Horizontal", 26),
    Sketcher.Constraint("Vertical", 27),
    Sketcher.Constraint("Symmetric", 2, 2, 12, 2, -1, 1),
    Sketcher.Constraint("Symmetric", 4, 2, 14, 2, -1, 1),
    Sketcher.Constraint("Symmetric", 6, 2, 16, 2, -1, 1),
    Sketcher.Constraint("Symmetric", 8, 2, 18, 2, -1, 1),
    Sketcher.Constraint("Symmetric", 10, 2, 20, 2, -1, 1),
    Sketcher.Constraint("Symmetric", 24, 2, 26, 2, -1, 1),
    Sketcher.Constraint("Symmetric", 10, 2, 13, 2, -2),
    Sketcher.Constraint("Symmetric", 8, 2, 15, 2, -2),
    Sketcher.Constraint("Symmetric", 1, 2, 22, 2, -2),
    Sketcher.Constraint("Horizontal", 0, 2, 23, 2),
    Sketcher.Constraint("Vertical", 21, 2, 24, 2),
    Sketcher.Constraint("Equal", 20, 1),
    Sketcher.Constraint("DistanceX", 6, 1, 6, 2, 25.0),
    Sketcher.Constraint("DistanceY", 3, 2, 3, 1, 7.0),
    Sketcher.Constraint("DistanceY", 7, 1, 7, 2, 8.0),
    Sketcher.Constraint("DistanceX", 0, 2, 0, 1, 6.6),
    Sketcher.Constraint("DistanceX", 4, 1, 4, 2, 2.4),
    Sketcher.Constraint("DistanceX", 12, 2, 12, 1, 20.2),
    Sketcher.Constraint("DistanceY", 5, 1, 5, 2, 25.5),
])
pocket6 = body.newObject("PartDesign::Pocket", "Pocket005")
pocket6.Profile = sketch13
pocket6.Length = 2
doc.recompute()

chamfer = body.newObject("PartDesign::Chamfer", "Chamfer")
chamfer.Base = (pocket6, edges_at(pocket6, [(-12.5, 4, 0), (12.5, 4, 0)]))
chamfer.Size = 10

# Sketch on XY plane
sketch14 = body.newObject("Sketcher::SketchObject", "Sketch013")
sketch14.AttachmentSupport = (doc.getObject("XY_Plane"), [""])
sketch14.MapMode = "FlatFace"
sketch14.AttachmentOffset = App.Placement(Vector(0, 0, 22.5), App.Rotation())
sketch14.addGeometry([
    Part.LineSegment(Vector(-10, 2, 0), Vector(10, 2, 0)),
    Part.LineSegment(Vector(10, 2, 0), Vector(10, 25, 0)),
    Part.LineSegment(Vector(10, 25, 0), Vector(-10, 25, 0)),
    Part.LineSegment(Vector(-10, 25, 0), Vector(-10, 2, 0)),
], False)
sketch14.addConstraint([
    Sketcher.Constraint("Coincident", 0, 2, 1, 1),
    Sketcher.Constraint("Coincident", 1, 2, 2, 1),
    Sketcher.Constraint("Coincident", 2, 2, 3, 1),
    Sketcher.Constraint("Coincident", 3, 2, 0, 1),
    Sketcher.Constraint("Horizontal", 0),
    Sketcher.Constraint("Vertical", 1),
    Sketcher.Constraint("Horizontal", 2),
    Sketcher.Constraint("Vertical", 3),
    Sketcher.Constraint("DistanceX", 0, 1, 0, 2, 20.2),
    Sketcher.Constraint("DistanceY", 1, 1, 1, 2, 22.9),
    Sketcher.Constraint("DistanceY", -1, 1, 0, 2, 2.0),
    Sketcher.Constraint("DistanceX", -1, 1, 0, 2, 10.1),
])
pocket7 = body.newObject("PartDesign::Pocket", "Pocket006")
pocket7.Profile = sketch14
pocket7.Length = 1.2

# Sketch on XY plane
sketch15 = body.newObject("Sketcher::SketchObject", "Sketch014")
sketch15.AttachmentSupport = (doc.getObject("XY_Plane"), [""])
sketch15.MapMode = "FlatFace"
sketch15.AttachmentOffset = App.Placement(Vector(0, 0, -22.5), App.Rotation())
sketch15.addGeometry([
    Part.LineSegment(Vector(10, 25, 0), Vector(10, 2, 0)),
    Part.LineSegment(Vector(10, 2, 0), Vector(-10, 2, 0)),
    Part.LineSegment(Vector(-10, 2, 0), Vector(-10, 25, 0)),
    Part.LineSegment(Vector(-10, 25, 0), Vector(10, 25, 0)),
], False)
sketch15.addConstraint([
    Sketcher.Constraint("Coincident", 0, 2, 1, 1),
    Sketcher.Constraint("Coincident", 1, 2, 2, 1),
    Sketcher.Constraint("Coincident", 2, 2, 3, 1),
    Sketcher.Constraint("Coincident", 3, 2, 0, 1),
    Sketcher.Constraint("Vertical", 0),
    Sketcher.Constraint("Horizontal", 1),
    Sketcher.Constraint("Vertical", 2),
    Sketcher.Constraint("Horizontal", 3),
    Sketcher.Constraint("DistanceX", 1, 2, 1, 1, 20.2),
    Sketcher.Constraint("DistanceY", 0, 2, 0, 1, 22.9),
    Sketcher.Constraint("DistanceY", -1, 1, 0, 2, 2.0),
    Sketcher.Constraint("DistanceX", -1, 1, 0, 2, 10.1),
])
pocket8 = body.newObject("PartDesign::Pocket", "Pocket007")
pocket8.Profile = sketch15
pocket8.Length = 1.2
pocket8.Reversed = True

# Sketch on XY plane
sketch16 = body.newObject("Sketcher::SketchObject", "Sketch015")
sketch16.AttachmentSupport = (doc.getObject("XY_Plane"), [""])
sketch16.MapMode = "FlatFace"
sketch16.AttachmentOffset = App.Placement(Vector(0, 0, -29.5), App.Rotation())
sketch16.addGeometry([
    Part.LineSegment(Vector(-10.1, 2, 0), Vector(-12.5, 2, 0)),  # 0
    Part.LineSegment(Vector(-12.5, 2, 0), Vector(-12.5, 26.9, 0)),  # 1
    Part.LineSegment(Vector(-12.5, 26.9, 0), Vector(12.5, 26.9, 0)),  # 2
    Part.LineSegment(Vector(12.5, 26.9, 0), Vector(12.5, 2, 0)),  # 3
    Part.LineSegment(Vector(12.5, 2, 0), Vector(10.1, 2, 0)),  # 4
    Part.LineSegment(Vector(10.1, 2, 0), Vector(10.1, 24.9, 0)),  # 5
    Part.LineSegment(Vector(10.1, 24.9, 0), Vector(-10.1, 24.9, 0)),  # 6
    Part.LineSegment(Vector(-10.1, 24.9, 0), Vector(-10.1, 2, 0)),  # 7
], False)
sketch16.addConstraint([
    Sketcher.Constraint("Coincident", 0, 2, 1, 1),
    Sketcher.Constraint("Coincident", 1, 2, 2, 1),
    Sketcher.Constraint("Coincident", 2, 2, 3, 1),
    Sketcher.Constraint("Coincident", 3, 2, 4, 1),
    Sketcher.Constraint("Coincident", 4, 2, 5, 1),
    Sketcher.Constraint("Coincident", 5, 2, 6, 1),
    Sketcher.Constraint("Coincident", 6, 2, 7, 1),
    Sketcher.Constraint("Coincident", 7, 2, 0, 1),
    Sketcher.Constraint("Horizontal", 0),
    Sketcher.Constraint("Vertical", 1),
    Sketcher.Constraint("Horizontal", 2),
    Sketcher.Constraint("Vertical", 3),
    Sketcher.Constraint("Horizontal", 4),
    Sketcher.Constraint("Vertical", 5),
    Sketcher.Constraint("Horizontal", 6),
    Sketcher.Constraint("Vertical", 7),
    Sketcher.Constraint("Symmetric", 0, 2, 3, 2, -2),
    Sketcher.Constraint("Equal", 0, 4),
    Sketcher.Constraint("DistanceX", 2, 1, 2, 2, 25.0),
    Sketcher.Constraint("DistanceX", 0, 2, 0, 1, 2.4),
    Sketcher.Constraint("DistanceY", 1, 1, 1, 2, 24.9),
    Sketcher.Constraint("DistanceY", 5, 1, 5, 2, 22.9),
    Sketcher.Constraint("DistanceY", -1, 1, 0, 2, 2.0),
])
pocket9 = body.newObject("PartDesign::Pocket", "Pocket008")
pocket9.Profile = sketch16
pocket9.Length = 2
pocket9.Reversed = True

# Sketch on XY plane
sketch17 = body.newObject("Sketcher::SketchObject", "Sketch016")
sketch17.AttachmentSupport = (doc.getObject("XY_Plane"), [""])
sketch17.MapMode = "FlatFace"
sketch17.AttachmentOffset = App.Placement(Vector(0, 0, 29.5), App.Rotation())
sketch17.addGeometry([
    Part.LineSegment(Vector(10.1, 2, 0), Vector(12.5, 2, 0)),  # 0
    Part.LineSegment(Vector(12.5, 2, 0), Vector(12.5, 26.9, 0)),  # 1
    Part.LineSegment(Vector(12.5, 26.9, 0), Vector(-12.5, 26.9, 0)),  # 2
    Part.LineSegment(Vector(-12.5, 26.9, 0), Vector(-12.5, 2, 0)),  # 3
    Part.LineSegment(Vector(-12.5, 2, 0), Vector(-10.1, 2, 0)),  # 4
    Part.LineSegment(Vector(-10.1, 2, 0), Vector(-10.1, 24.9, 0)),  # 5
    Part.LineSegment(Vector(-10.1, 24.9, 0), Vector(10.1, 24.9, 0)),  # 6
    Part.LineSegment(Vector(10.1, 24.9, 0), Vector(10.1, 2, 0)),  # 7
], False)
sketch17.addConstraint([
    Sketcher.Constraint("Coincident", 0, 2, 1, 1),
    Sketcher.Constraint("Coincident", 1, 2, 2, 1),
    Sketcher.Constraint("Coincident", 2, 2, 3, 1),
    Sketcher.Constraint("Coincident", 3, 2, 4, 1),
    Sketcher.Constraint("Coincident", 4, 2, 5, 1),
    Sketcher.Constraint("Coincident", 5, 2, 6, 1),
    Sketcher.Constraint("Coincident", 6, 2, 7, 1),
    Sketcher.Constraint("Coincident", 7, 2, 0, 1),
    Sketcher.Constraint("Horizontal", 0),
    Sketcher.Constraint("Vertical", 1),
    Sketcher.Constraint("Horizontal", 2),
    Sketcher.Constraint("Vertical", 3),
    Sketcher.Constraint("Horizontal", 4),
    Sketcher.Constraint("Vertical", 5),
    Sketcher.Constraint("Horizontal", 6),
    Sketcher.Constraint("Vertical", 7),
    Sketcher.Constraint("Symmetric", 0, 2, 3, 2, -2),
    Sketcher.Constraint("Equal", 0, 4),
    Sketcher.Constraint("DistanceX", 2, 2, 2, 1, 25.0),
    Sketcher.Constraint("DistanceX", 0, 1, 0, 2, 2.4),
    Sketcher.Constraint("DistanceY", 1, 1, 1, 2, 24.9),
    Sketcher.Constraint("DistanceY", 5, 1, 5, 2, 22.9),
    Sketcher.Constraint("DistanceY", -1, 1, 0, 2, 2.0),
])
pocket10 = body.newObject("PartDesign::Pocket", "Pocket009")
pocket10.Profile = sketch17
pocket10.Length = 2

# Sketch on XZ plane
sketch18 = body.newObject("Sketcher::SketchObject", "Sketch017")
sketch18.AttachmentSupport = (doc.getObject("XZ_Plane"), [""])
sketch18.MapMode = "FlatFace"
sketch18.AttachmentOffset = App.Placement(Vector(0, 0, -2), App.Rotation())
sketch18.addGeometry([
    Part.LineSegment(Vector(-38, 4, 0), Vector(-38, -4, 0)),  # 0
    Part.LineSegment(Vector(-38, -4, 0), Vector(-12, -4, 0)),  # 1
    Part.LineSegment(Vector(-12, -4, 0), Vector(-12, 4, 0)),  # 2
    Part.LineSegment(Vector(-12, 4, 0), Vector(-38, 4, 0)),  # 3
    Part.LineSegment(Vector(12, 4, 0), Vector(12, -4, 0)),  # 4
    Part.LineSegment(Vector(12, -4, 0), Vector(38, -4, 0)),  # 5
    Part.LineSegment(Vector(38, -4, 0), Vector(38, 4, 0)),  # 6
    Part.LineSegment(Vector(38, 4, 0), Vector(12, 4, 0)),  # 7
], False)
sketch18.addConstraint([
    Sketcher.Constraint("Coincident", 0, 2, 1, 1),
    Sketcher.Constraint("Coincident", 1, 2, 2, 1),
    Sketcher.Constraint("Coincident", 2, 2, 3, 1),
    Sketcher.Constraint("Coincident", 3, 2, 0, 1),
    Sketcher.Constraint("Coincident", 4, 2, 5, 1),
    Sketcher.Constraint("Coincident", 5, 2, 6, 1),
    Sketcher.Constraint("Coincident", 6, 2, 7, 1),
    Sketcher.Constraint("Coincident", 7, 2, 4, 1),
    Sketcher.Constraint("Vertical", 0),
    Sketcher.Constraint("Horizontal", 1),
    Sketcher.Constraint("Vertical", 2),
    Sketcher.Constraint("Horizontal", 3),
    Sketcher.Constraint("Vertical", 4),
    Sketcher.Constraint("Horizontal", 5),
    Sketcher.Constraint("Vertical", 6),
    Sketcher.Constraint("Horizontal", 7),
    Sketcher.Constraint("Symmetric", 2, 2, 4, 2, -1, 1),
    Sketcher.Constraint("Symmetric", 0, 2, 6, 2, -1, 1),
    Sketcher.Constraint("Horizontal", 1, 2, 4, 2),
    Sketcher.Constraint("DistanceX", 1, 1, 1, 2, 25.0),
    Sketcher.Constraint("DistanceY", 0, 2, 0, 1, 8.0),
    Sketcher.Constraint("DistanceX", 1, 2, 4, 2, 25.0),
])
pocket11 = body.newObject("PartDesign::Pocket", "Pocket010")
pocket11.Profile = sketch18
pocket11.Length = 156

# Sketch on YZ plane
sketch19 = body.newObject("Sketcher::SketchObject", "Sketch018")
sketch19.AttachmentSupport = (doc.getObject("YZ_Plane"), [""])
sketch19.MapMode = "FlatFace"
sketch19.AttachmentOffset = App.Placement(Vector(0, 0, -10.1), App.Rotation())
sketch19.addGeometry([
    Part.LineSegment(Vector(25, 28, 0), Vector(2, 28, 0)),  # 0
    Part.LineSegment(Vector(2, 28, 0), Vector(2, 21, 0)),  # 1
    Part.LineSegment(Vector(2, 21, 0), Vector(25, 21, 0)),  # 2
    Part.LineSegment(Vector(25, 21, 0), Vector(25, 28, 0)),  # 3
    Part.LineSegment(Vector(25, -21, 0), Vector(2, -21, 0)),  # 4
    Part.LineSegment(Vector(2, -21, 0), Vector(2, -28, 0)),  # 5
    Part.LineSegment(Vector(2, -28, 0), Vector(25, -28, 0)),  # 6
    Part.LineSegment(Vector(25, -28, 0), Vector(25, -21, 0)),  # 7
], False)
sketch19.addConstraint([
    Sketcher.Constraint("Coincident", 0, 2, 1, 1),
    Sketcher.Constraint("Coincident", 1, 2, 2, 1),
    Sketcher.Constraint("Coincident", 2, 2, 3, 1),
    Sketcher.Constraint("Coincident", 3, 2, 0, 1),
    Sketcher.Constraint("Coincident", 4, 2, 5, 1),
    Sketcher.Constraint("Coincident", 5, 2, 6, 1),
    Sketcher.Constraint("Coincident", 6, 2, 7, 1),
    Sketcher.Constraint("Coincident", 7, 2, 4, 1),
    Sketcher.Constraint("Horizontal", 0),
    Sketcher.Constraint("Vertical", 1),
    Sketcher.Constraint("Horizontal", 2),
    Sketcher.Constraint("Vertical", 3),
    Sketcher.Constraint("Horizontal", 4),
    Sketcher.Constraint("Vertical", 5),
    Sketcher.Constraint("Horizontal", 6),
    Sketcher.Constraint("Vertical", 7),
    Sketcher.Constraint("Symmetric", 1, 2, 4, 2, -1),
    Sketcher.Constraint("Symmetric", 3, 2, 6, 2, -1),
    Sketcher.Constraint("DistanceX", 0, 2, 0, 1, 22.9),
    Sketcher.Constraint("DistanceY", 1, 2, 1, 1, 6.2),
    Sketcher.Constraint("DistanceX", -1, 1, 0, 2, 2.0),
    Sketcher.Constraint("DistanceY", 5, 2, 0, 2, 55.0),
])
pocket12 = body.newObject("PartDesign::Pocket", "Pocket011")
pocket12.Profile = sketch19
pocket12.Length = 55
pocket12.Reversed = True

# Sketch on YZ plane
sketch20 = body.newObject("Sketcher::SketchObject", "Sketch019")
sketch20.AttachmentSupport = (doc.getObject("YZ_Plane"), [""])
sketch20.MapMode = "FlatFace"
sketch20.AttachmentOffset = App.Placement(Vector(0, 0, -10.1), App.Rotation())
sketch20.addGeometry([
    Part.Circle(Vector(12, 24.4, 0), Vector(0, 0, 1), 1.6),
    Part.Circle(Vector(12, -24.4, 0), Vector(0, 0, 1), 1.6),
], False)
sketch20.addConstraint([
    Sketcher.Constraint("Equal", 0, 1),
    Sketcher.Constraint("Symmetric", 0, 3, 1, 3, -1),
    Sketcher.Constraint("Diameter", 0, 3.2),
    Sketcher.Constraint("DistanceX", -1, 1, 0, 3, 12.0),
    Sketcher.Constraint("DistanceY", -1, 1, 0, 3, 24.4),
])
pocket13 = body.newObject("PartDesign::Pocket", "Pocket012")
pocket13.Profile = sketch20
pocket13.Length = 55

doc.recompute()
